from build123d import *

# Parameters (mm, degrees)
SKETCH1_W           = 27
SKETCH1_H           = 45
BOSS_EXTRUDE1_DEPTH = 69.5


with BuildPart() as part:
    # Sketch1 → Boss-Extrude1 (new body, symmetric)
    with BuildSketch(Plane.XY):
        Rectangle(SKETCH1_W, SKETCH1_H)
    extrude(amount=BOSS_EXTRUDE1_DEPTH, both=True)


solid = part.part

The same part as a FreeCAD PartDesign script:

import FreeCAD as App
import Part
import Sketcher

V = App.Vector

doc = App.newDocument("Part")
body = doc.addObject("PartDesign::Body", "Body")

sketch1 = body.newObject("Sketcher::SketchObject", "Sketch")
sketch1.AttachmentSupport = (doc.getObject("XY_Plane"), [""])
sketch1.MapMode = "FlatFace"
sketch1.addGeometry([
    Part.LineSegment(V(-14, 22, 0), V(-14, -22, 0)),
    Part.LineSegment(V(-14, -22, 0), V(14, -22, 0)),
    Part.LineSegment(V(14, -22, 0), V(14, 22, 0)),
    Part.LineSegment(V(14, 22, 0), V(-14, 22, 0)),
], False)
sketch1.addConstraint([
    Sketcher.Constraint("Coincident", 0, 2, 1, 1),
    Sketcher.Constraint("Coincident", 1, 2, 2, 1),
    Sketcher.Constraint("Coincident", 2, 2, 3, 1),
    Sketcher.Constraint("Coincident", 3, 2, 0, 1),
    Sketcher.Constraint("Vertical", 0),
    Sketcher.Constraint("Horizontal", 1),
    Sketcher.Constraint("Vertical", 2),
    Sketcher.Constraint("Horizontal", 3),
    Sketcher.Constraint("Symmetric", 0, 2, 2, 2, -1, 1),
    Sketcher.Constraint("DistanceX", 1, 1, 1, 2, 27.0),
    Sketcher.Constraint("DistanceY", 0, 2, 0, 1, 45.0),
])
pad1 = body.newObject("PartDesign::Pad", "Pad")
pad1.Profile = sketch1
pad1.Length = 139
pad1.Midplane = True

doc.recompute()
